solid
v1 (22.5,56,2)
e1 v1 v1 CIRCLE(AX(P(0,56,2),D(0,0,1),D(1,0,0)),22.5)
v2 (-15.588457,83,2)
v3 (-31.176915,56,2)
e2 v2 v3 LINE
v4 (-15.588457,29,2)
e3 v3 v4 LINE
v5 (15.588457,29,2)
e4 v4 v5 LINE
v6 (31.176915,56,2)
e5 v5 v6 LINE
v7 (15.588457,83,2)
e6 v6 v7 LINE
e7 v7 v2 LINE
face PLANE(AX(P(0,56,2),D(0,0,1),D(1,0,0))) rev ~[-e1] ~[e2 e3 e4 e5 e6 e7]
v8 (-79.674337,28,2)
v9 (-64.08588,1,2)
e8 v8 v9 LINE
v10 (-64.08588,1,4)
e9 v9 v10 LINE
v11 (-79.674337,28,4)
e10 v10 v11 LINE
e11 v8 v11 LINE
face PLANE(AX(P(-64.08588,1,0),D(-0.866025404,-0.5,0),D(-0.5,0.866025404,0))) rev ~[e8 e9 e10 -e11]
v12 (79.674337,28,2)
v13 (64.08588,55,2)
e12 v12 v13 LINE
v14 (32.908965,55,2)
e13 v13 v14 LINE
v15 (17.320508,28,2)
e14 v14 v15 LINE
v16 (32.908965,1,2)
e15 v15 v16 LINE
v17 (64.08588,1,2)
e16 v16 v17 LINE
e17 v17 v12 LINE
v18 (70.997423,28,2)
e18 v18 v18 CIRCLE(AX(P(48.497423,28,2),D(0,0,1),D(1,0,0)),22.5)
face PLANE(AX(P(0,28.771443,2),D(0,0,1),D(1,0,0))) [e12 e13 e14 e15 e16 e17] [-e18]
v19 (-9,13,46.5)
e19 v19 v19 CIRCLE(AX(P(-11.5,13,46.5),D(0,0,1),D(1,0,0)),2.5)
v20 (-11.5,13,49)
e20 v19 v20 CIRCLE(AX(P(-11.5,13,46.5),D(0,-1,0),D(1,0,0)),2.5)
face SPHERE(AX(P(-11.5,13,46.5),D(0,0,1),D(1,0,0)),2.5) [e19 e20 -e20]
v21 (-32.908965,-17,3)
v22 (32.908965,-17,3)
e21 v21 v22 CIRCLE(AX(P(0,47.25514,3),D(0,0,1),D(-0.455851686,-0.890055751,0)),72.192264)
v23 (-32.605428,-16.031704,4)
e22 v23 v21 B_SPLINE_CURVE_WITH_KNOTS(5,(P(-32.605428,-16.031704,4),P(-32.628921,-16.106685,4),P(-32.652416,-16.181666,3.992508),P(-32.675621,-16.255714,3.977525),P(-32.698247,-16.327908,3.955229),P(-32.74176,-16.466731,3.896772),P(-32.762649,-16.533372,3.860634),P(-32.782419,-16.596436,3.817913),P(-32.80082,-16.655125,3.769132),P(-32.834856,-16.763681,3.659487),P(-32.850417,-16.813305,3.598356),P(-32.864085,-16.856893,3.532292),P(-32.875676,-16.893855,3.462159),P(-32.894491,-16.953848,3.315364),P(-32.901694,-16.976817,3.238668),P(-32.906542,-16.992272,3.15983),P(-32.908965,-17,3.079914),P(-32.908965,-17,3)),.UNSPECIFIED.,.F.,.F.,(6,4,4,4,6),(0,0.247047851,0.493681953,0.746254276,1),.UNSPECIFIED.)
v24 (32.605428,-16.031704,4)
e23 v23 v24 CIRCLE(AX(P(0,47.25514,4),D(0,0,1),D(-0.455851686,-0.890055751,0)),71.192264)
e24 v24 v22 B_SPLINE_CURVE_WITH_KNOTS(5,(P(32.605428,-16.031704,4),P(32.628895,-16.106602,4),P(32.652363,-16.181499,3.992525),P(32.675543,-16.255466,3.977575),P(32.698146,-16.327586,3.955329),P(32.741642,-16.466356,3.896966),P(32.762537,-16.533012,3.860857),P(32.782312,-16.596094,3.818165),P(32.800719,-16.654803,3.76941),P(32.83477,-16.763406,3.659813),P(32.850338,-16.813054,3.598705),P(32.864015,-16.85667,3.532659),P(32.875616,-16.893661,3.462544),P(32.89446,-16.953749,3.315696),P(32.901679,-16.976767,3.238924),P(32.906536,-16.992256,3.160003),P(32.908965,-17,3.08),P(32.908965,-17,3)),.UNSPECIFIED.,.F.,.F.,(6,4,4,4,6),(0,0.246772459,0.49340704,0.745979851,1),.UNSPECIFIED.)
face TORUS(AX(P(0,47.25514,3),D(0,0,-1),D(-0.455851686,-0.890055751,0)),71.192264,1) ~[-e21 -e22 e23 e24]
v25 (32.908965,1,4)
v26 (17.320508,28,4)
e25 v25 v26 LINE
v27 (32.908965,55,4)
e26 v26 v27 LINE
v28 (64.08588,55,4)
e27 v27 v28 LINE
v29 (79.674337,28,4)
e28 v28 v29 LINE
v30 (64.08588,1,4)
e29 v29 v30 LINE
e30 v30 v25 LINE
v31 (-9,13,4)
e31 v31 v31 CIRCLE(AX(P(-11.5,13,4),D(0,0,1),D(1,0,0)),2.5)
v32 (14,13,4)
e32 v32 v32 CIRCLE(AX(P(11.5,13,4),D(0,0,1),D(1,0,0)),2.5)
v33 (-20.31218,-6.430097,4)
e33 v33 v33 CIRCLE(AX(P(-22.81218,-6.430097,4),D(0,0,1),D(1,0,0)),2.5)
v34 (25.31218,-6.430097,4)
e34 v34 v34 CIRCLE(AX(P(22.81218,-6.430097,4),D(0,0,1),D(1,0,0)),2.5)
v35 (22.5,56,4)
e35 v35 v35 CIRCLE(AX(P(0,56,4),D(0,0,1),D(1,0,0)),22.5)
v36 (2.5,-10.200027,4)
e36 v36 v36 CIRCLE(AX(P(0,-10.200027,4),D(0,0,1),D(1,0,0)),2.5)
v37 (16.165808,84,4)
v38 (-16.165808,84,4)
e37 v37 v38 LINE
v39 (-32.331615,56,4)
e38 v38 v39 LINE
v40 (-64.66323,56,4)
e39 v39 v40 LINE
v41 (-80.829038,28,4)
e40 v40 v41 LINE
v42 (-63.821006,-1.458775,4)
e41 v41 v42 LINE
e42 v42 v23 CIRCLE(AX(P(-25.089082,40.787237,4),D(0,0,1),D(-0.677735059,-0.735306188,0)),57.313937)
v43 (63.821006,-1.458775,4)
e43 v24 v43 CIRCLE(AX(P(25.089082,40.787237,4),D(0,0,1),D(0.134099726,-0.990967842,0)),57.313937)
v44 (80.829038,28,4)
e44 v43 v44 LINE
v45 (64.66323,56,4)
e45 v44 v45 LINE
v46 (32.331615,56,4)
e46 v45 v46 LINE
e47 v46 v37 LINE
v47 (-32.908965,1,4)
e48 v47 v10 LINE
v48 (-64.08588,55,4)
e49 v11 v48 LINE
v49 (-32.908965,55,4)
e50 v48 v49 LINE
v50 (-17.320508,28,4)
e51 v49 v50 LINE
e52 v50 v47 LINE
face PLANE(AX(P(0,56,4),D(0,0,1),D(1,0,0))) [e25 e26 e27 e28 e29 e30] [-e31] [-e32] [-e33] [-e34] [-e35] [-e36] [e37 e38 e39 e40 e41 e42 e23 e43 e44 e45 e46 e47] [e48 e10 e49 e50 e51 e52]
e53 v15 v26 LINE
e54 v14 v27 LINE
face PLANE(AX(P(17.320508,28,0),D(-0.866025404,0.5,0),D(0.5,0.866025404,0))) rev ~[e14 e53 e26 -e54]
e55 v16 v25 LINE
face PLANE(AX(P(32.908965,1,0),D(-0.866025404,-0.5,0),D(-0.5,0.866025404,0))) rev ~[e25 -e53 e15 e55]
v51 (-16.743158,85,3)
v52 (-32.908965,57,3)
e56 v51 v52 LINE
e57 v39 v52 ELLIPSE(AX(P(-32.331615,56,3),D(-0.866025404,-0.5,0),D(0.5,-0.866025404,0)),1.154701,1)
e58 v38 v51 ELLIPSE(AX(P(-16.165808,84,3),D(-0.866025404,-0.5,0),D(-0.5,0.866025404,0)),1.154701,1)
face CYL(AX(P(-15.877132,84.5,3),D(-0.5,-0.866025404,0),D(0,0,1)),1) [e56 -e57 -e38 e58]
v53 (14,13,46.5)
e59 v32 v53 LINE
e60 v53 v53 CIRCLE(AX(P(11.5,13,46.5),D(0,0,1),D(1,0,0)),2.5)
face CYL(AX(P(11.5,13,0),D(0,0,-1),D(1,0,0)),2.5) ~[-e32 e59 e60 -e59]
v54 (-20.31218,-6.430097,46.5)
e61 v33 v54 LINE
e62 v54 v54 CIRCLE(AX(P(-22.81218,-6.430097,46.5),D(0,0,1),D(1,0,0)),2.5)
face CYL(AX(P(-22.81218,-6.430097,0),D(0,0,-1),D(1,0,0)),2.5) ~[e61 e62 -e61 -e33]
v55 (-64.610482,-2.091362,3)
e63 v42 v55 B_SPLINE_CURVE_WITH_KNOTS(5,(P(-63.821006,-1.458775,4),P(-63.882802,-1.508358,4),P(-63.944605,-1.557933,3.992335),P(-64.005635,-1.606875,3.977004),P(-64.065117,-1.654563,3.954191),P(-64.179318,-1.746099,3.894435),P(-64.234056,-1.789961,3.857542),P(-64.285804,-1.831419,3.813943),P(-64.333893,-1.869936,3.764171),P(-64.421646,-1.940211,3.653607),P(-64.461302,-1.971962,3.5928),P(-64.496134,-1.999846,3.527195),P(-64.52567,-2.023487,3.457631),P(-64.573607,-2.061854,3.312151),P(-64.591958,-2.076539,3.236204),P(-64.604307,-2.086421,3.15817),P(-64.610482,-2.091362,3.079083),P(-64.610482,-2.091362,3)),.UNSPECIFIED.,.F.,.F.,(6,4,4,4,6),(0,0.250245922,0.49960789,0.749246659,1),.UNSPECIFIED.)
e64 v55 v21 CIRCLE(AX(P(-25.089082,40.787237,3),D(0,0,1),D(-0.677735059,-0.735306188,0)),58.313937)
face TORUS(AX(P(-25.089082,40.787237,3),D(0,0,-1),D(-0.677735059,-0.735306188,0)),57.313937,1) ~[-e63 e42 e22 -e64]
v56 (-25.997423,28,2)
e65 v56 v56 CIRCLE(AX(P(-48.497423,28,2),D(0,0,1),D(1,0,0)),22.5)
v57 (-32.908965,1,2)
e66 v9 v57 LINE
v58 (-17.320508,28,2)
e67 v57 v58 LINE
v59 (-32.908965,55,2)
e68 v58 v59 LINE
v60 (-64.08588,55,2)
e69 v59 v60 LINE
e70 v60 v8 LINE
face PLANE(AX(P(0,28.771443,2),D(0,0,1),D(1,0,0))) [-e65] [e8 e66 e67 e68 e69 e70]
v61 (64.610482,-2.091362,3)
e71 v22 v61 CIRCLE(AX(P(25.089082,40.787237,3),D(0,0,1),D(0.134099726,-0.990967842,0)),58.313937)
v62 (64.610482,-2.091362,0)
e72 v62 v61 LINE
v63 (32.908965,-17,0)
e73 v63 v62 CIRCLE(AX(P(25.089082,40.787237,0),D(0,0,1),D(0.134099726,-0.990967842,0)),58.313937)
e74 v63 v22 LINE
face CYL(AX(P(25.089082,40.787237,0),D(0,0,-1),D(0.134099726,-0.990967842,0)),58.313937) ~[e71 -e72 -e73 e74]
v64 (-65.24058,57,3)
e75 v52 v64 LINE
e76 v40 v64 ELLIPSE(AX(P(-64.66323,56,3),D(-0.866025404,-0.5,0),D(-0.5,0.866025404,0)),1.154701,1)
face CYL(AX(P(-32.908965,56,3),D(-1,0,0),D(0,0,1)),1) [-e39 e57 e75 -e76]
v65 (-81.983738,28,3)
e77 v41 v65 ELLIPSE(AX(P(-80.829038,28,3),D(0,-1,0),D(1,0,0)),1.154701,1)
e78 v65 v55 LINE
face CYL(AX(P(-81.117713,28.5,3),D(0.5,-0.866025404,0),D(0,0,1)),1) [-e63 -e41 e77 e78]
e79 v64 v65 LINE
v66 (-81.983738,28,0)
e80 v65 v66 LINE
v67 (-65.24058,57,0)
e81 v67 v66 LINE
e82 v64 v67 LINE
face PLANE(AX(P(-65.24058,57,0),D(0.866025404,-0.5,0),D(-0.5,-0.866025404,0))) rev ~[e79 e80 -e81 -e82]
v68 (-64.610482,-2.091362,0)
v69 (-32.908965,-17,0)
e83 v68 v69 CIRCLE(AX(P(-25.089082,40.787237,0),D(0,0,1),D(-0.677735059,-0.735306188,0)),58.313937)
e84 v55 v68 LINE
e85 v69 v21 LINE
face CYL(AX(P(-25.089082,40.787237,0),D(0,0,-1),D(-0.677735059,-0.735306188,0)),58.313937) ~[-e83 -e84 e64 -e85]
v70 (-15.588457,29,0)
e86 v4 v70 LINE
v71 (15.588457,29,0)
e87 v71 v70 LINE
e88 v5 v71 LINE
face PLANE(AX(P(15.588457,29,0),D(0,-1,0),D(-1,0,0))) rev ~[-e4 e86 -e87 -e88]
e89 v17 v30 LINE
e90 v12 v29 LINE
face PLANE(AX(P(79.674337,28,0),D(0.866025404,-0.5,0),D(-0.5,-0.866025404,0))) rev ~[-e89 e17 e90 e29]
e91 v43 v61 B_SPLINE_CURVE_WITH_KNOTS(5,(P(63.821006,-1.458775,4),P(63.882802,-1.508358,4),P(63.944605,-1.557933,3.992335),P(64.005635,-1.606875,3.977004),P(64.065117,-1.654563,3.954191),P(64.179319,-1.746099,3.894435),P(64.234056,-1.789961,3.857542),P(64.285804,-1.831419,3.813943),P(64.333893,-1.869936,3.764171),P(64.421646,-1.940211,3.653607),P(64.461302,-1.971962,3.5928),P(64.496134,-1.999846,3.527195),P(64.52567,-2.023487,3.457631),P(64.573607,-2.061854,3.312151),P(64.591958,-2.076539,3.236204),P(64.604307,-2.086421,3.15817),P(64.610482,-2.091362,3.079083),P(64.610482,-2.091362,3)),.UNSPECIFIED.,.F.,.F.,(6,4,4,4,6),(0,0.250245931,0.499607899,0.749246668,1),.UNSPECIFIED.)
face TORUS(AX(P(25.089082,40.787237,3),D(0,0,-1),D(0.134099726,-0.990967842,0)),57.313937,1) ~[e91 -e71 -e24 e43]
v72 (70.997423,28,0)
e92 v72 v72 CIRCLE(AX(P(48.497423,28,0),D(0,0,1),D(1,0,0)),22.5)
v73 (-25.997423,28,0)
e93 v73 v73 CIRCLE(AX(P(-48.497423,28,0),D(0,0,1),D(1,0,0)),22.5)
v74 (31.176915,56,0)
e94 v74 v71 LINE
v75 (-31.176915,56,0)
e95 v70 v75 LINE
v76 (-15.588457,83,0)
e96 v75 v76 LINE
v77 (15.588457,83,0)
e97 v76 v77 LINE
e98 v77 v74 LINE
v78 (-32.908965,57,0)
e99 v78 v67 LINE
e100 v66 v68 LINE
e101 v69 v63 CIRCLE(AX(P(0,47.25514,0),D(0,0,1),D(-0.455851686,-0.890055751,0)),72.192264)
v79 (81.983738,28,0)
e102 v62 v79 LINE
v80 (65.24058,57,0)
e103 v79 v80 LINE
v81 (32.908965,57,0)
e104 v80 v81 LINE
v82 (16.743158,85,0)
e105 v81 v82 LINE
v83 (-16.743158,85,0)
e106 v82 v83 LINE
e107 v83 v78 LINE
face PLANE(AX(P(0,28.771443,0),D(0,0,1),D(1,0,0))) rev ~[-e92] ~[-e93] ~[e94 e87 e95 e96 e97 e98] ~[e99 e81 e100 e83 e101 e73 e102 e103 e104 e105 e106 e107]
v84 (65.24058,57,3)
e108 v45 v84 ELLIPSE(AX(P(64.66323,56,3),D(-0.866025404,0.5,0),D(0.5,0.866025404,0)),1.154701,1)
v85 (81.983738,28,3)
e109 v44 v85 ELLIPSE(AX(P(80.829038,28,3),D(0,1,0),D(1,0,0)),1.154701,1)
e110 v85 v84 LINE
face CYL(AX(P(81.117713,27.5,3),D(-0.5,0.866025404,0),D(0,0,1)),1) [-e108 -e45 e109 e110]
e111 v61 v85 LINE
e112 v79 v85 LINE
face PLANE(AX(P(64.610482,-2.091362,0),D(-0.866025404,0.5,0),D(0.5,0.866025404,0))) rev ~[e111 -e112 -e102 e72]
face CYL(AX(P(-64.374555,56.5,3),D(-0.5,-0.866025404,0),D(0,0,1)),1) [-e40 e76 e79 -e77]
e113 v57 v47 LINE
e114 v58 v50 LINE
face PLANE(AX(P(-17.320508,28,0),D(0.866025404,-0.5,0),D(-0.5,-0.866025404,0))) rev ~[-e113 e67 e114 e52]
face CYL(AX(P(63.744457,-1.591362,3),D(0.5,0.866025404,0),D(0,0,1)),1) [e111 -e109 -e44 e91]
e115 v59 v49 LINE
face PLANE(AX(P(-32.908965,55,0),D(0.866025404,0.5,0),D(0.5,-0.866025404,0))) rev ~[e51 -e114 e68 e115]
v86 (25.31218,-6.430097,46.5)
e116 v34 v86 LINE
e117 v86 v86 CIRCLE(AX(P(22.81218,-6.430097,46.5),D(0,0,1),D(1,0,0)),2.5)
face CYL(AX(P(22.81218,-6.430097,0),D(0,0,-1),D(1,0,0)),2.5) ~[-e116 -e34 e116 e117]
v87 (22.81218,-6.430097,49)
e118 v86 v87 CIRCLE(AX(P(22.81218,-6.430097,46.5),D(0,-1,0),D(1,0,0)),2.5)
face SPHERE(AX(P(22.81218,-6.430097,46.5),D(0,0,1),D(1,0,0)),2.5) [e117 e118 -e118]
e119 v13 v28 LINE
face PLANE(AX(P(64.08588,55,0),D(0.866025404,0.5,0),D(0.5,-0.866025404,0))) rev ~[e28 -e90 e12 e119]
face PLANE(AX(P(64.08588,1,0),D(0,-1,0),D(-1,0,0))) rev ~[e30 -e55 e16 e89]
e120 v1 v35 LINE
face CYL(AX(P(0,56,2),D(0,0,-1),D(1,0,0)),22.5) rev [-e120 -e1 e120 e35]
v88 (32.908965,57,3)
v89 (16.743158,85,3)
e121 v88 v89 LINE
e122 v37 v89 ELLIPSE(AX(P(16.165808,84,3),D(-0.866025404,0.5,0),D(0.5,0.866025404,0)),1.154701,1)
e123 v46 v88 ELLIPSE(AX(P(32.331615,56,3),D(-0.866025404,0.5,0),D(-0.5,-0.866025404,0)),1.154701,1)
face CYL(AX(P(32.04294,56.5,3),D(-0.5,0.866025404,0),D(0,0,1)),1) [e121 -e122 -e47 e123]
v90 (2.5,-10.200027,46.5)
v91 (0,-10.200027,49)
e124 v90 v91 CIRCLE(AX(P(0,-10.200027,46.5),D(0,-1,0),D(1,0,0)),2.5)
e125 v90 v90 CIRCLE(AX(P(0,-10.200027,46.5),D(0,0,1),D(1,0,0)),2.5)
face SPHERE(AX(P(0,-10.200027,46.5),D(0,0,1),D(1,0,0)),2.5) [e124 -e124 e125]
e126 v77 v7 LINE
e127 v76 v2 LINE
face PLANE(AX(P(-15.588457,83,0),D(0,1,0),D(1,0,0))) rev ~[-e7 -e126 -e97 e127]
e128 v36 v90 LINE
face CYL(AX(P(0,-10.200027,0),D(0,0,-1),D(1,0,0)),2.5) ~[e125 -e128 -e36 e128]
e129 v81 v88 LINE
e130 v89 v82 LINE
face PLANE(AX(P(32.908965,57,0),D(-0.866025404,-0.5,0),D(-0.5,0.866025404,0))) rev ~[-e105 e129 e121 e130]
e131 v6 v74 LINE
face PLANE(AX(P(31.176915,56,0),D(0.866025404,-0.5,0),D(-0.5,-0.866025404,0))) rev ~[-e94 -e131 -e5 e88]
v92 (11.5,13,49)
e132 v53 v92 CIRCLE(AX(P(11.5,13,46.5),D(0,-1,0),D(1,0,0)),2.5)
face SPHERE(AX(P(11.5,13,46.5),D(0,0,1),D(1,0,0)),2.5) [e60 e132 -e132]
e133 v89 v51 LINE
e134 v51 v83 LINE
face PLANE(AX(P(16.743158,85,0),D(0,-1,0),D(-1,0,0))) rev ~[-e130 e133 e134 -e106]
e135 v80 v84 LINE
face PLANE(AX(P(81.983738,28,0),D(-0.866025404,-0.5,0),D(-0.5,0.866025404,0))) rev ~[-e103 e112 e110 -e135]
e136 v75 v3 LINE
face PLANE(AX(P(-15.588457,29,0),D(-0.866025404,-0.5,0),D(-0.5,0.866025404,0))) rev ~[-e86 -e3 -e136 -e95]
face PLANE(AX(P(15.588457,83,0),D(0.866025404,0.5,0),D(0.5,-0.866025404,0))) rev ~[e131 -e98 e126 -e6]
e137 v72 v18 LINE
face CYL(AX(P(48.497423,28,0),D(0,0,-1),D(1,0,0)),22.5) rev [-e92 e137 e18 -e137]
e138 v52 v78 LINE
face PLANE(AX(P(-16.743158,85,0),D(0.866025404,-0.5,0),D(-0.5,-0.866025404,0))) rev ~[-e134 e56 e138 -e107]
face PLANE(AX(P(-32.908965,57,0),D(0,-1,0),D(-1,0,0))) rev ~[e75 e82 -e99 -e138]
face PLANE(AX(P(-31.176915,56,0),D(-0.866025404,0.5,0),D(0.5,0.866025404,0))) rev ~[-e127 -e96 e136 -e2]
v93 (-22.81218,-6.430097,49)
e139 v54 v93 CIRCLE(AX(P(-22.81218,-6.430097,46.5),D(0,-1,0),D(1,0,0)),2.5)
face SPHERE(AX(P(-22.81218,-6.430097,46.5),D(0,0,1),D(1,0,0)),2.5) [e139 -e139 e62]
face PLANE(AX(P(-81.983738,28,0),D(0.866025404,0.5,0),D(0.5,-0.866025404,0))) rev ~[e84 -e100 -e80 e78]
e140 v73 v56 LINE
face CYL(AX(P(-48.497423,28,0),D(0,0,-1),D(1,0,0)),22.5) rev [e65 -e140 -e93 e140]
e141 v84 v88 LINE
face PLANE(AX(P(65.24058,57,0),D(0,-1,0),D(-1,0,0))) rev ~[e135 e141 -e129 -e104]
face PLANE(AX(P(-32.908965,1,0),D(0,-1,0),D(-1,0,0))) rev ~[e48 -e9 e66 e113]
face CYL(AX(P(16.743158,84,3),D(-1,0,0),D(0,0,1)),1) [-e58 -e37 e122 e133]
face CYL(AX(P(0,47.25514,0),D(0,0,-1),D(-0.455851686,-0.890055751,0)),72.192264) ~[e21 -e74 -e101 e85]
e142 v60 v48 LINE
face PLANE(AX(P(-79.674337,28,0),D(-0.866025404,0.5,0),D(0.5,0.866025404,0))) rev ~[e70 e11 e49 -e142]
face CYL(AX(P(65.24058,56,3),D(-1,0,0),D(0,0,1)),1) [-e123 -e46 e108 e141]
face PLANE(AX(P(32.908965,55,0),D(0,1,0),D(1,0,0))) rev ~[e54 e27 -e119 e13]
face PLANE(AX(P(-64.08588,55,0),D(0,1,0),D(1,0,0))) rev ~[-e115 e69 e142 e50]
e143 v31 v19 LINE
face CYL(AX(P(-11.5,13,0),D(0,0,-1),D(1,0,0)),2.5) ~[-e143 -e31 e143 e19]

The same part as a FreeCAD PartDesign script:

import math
import FreeCAD as App
import Part
import Sketcher
Q = App.Units.Quantity


def edges_at(feature, points):
    """Names of the edges that pass closest to the given points."""
    edges = feature.Shape.Edges
    near = lambda p: min(range(len(edges)), key=lambda i: edges[i].distToShape(Part.Vertex(*p))[0])
    return sorted({f"Edge{near(p) + 1}" for p in points})

doc = App.newDocument("Part")
body = doc.addObject("PartDesign::Body", "Body")

# Sketch on XY plane
sketch1 = doc.addObject("Sketcher::SketchObject", "Sketch")
body.addObject(sketch1)
sketch1.AttachmentSupport = (doc.XY_Plane, [""])
sketch1.MapMode = "FlatFace"
sketch1.addGeometry(Part.ArcOfCircle(Part.Circle(App.Vector(-25.1, 40.8, 0), App.Vector(0, 0, 1), 58.3), math.radians(-133), math.radians(-98)), False)
sketch1.addGeometry(Part.ArcOfCircle(Part.Circle(App.Vector(0, 47.3, 0), App.Vector(0, 0, 1), 72.2), math.radians(-117), math.radians(-63)), False)
sketch1.addGeometry(Part.ArcOfCircle(Part.Circle(App.Vector(25.1, 40.8, 0), App.Vector(0, 0, 1), 58.3), math.radians(-82), math.radians(-47)), False)
sketch1.addGeometry(Part.LineSegment(App.Vector(64.6, -2.1, 0), App.Vector(82, 28, 0)), False)
sketch1.addGeometry(Part.LineSegment(App.Vector(82, 28, 0), App.Vector(65.2, 57, 0)), False)
sketch1.addGeometry(Part.LineSegment(App.Vector(65.2, 57, 0), App.Vector(32.9, 57, 0)), False)
sketch1.addGeometry(Part.LineSegment(App.Vector(32.9, 57, 0), App.Vector(16.7, 85, 0)), False)
sketch1.addGeometry(Part.LineSegment(App.Vector(16.7, 85, 0), App.Vector(-16.7, 85, 0)), False)
sketch1.addGeometry(Part.LineSegment(App.Vector(-16.7, 85, 0), App.Vector(-32.9, 57, 0)), False)
sketch1.addGeometry(Part.LineSegment(App.Vector(-32.9, 57, 0), App.Vector(-65.2, 57, 0)), False)
sketch1.addGeometry(Part.LineSegment(App.Vector(-65.2, 57, 0), App.Vector(-82, 28, 0)), False)
sketch1.addGeometry(Part.LineSegment(App.Vector(-82, 28, 0), App.Vector(-64.6, -2.1, 0)), False)
sketch1.addGeometry(Part.Circle(App.Vector(-22.8, -6.4, 0), App.Vector(0, 0, 1), 2.5), False)
sketch1.addGeometry(Part.Circle(App.Vector(-48.5, 28, 0), App.Vector(0, 0, 1), 22.5), False)
sketch1.addGeometry(Part.Circle(App.Vector(-11.5, 13, 0), App.Vector(0, 0, 1), 2.5), False)
sketch1.addGeometry(Part.Circle(App.Vector(0, -10.2, 0), App.Vector(0, 0, 1), 2.5), False)
sketch1.addGeometry(Part.Circle(App.Vector(22.8, -6.4, 0), App.Vector(0, 0, 1), 2.5), False)
sketch1.addGeometry(Part.Circle(App.Vector(11.5, 13, 0), App.Vector(0, 0, 1), 2.5), False)
sketch1.addGeometry(Part.Circle(App.Vector(48.5, 28, 0), App.Vector(0, 0, 1), 22.5), False)
sketch1.addGeometry(Part.LineSegment(App.Vector(-15.6, 29, 0), App.Vector(-31.2, 56, 0)), False)
sketch1.addGeometry(Part.LineSegment(App.Vector(-31.2, 56, 0), App.Vector(-15.6, 83, 0)), False)
sketch1.addGeometry(Part.LineSegment(App.Vector(-15.6, 83, 0), App.Vector(15.6, 83, 0)), False)
sketch1.addGeometry(Part.LineSegment(App.Vector(15.6, 83, 0), App.Vector(31.2, 56, 0)), False)
sketch1.addGeometry(Part.LineSegment(App.Vector(31.2, 56, 0), App.Vector(15.6, 29, 0)), False)
sketch1.addGeometry(Part.LineSegment(App.Vector(15.6, 29, 0), App.Vector(-15.6, 29, 0)), False)
sketch1.addConstraint(Sketcher.Constraint("Coincident", 0, 2, 1, 1))
sketch1.addConstraint(Sketcher.Constraint("Coincident", 1, 2, 2, 1))
sketch1.addConstraint(Sketcher.Constraint("Coincident", 2, 2, 3, 1))
sketch1.addConstraint(Sketcher.Constraint("Coincident", 3, 2, 4, 1))
sketch1.addConstraint(Sketcher.Constraint("Coincident", 4, 2, 5, 1))
sketch1.addConstraint(Sketcher.Constraint("Coincident", 5, 2, 6, 1))
sketch1.addConstraint(Sketcher.Constraint("Coincident", 6, 2, 7, 1))
sketch1.addConstraint(Sketcher.Constraint("Coincident", 7, 2, 8, 1))
sketch1.addConstraint(Sketcher.Constraint("Coincident", 8, 2, 9, 1))
sketch1.addConstraint(Sketcher.Constraint("Coincident", 9, 2, 10, 1))
sketch1.addConstraint(Sketcher.Constraint("Coincident", 10, 2, 11, 1))
sketch1.addConstraint(Sketcher.Constraint("Coincident", 11, 2, 0, 1))
sketch1.addConstraint(Sketcher.Constraint("Coincident", 19, 2, 20, 1))
sketch1.addConstraint(Sketcher.Constraint("Coincident", 20, 2, 21, 1))
sketch1.addConstraint(Sketcher.Constraint("Coincident", 21, 2, 22, 1))
sketch1.addConstraint(Sketcher.Constraint("Coincident", 22, 2, 23, 1))
sketch1.addConstraint(Sketcher.Constraint("Coincident", 23, 2, 24, 1))
sketch1.addConstraint(Sketcher.Constraint("Coincident", 24, 2, 19, 1))
sketch1.addConstraint(Sketcher.Constraint("Horizontal", 5))
sketch1.addConstraint(Sketcher.Constraint("Horizontal", 7))
sketch1.addConstraint(Sketcher.Constraint("Horizontal", 9))
sketch1.addConstraint(Sketcher.Constraint("Horizontal", 21))
sketch1.addConstraint(Sketcher.Constraint("Horizontal", 24))
sketch1.addConstraint(Sketcher.Constraint("Equal", 0, 2))
sketch1.addConstraint(Sketcher.Constraint("Equal", 12, 14))
sketch1.addConstraint(Sketcher.Constraint("Equal", 14, 15))
sketch1.addConstraint(Sketcher.Constraint("Equal", 15, 16))
sketch1.addConstraint(Sketcher.Constraint("Equal", 16, 17))
sketch1.addConstraint(Sketcher.Constraint("Equal", 13, 18))
sketch1.addConstraint(Sketcher.Constraint("Symmetric", 0, 3, 2, 3, -2))
sketch1.addConstraint(Sketcher.Constraint("Symmetric", 12, 3, 16, 3, -2))
sketch1.addConstraint(Sketcher.Constraint("Symmetric", 14, 3, 17, 3, -2))
sketch1.addConstraint(Sketcher.Constraint("Symmetric", 13, 3, 18, 3, -2))
sketch1.addConstraint(Sketcher.Constraint("Symmetric", 5, 2, 8, 2, -2))
sketch1.addConstraint(Sketcher.Constraint("Symmetric", 3, 2, 10, 2, -2))
sketch1.addConstraint(Sketcher.Constraint("Symmetric", 19, 2, 22, 2, -2))
sketch1.addConstraint(Sketcher.Constraint("PointOnObject", 1, 3, -2))
sketch1.addConstraint(Sketcher.Constraint("PointOnObject", 15, 3, -2))
sketch1.addConstraint(Sketcher.Constraint("Parallel", 4, 6))
sketch1.addConstraint(Sketcher.Constraint("Parallel", 3, 8))
sketch1.addConstraint(Sketcher.Constraint("Parallel", 8, 10))
sketch1.addConstraint(Sketcher.Constraint("Parallel", 6, 11))
sketch1.addConstraint(Sketcher.Constraint("Parallel", 11, 19))
sketch1.addConstraint(Sketcher.Constraint("Parallel", 10, 20))
sketch1.addConstraint(Sketcher.Constraint("Parallel", 19, 22))
sketch1.addConstraint(Sketcher.Constraint("Parallel", 20, 23))
sketch1.addConstraint(Sketcher.Constraint("Horizontal", 18, 3, 3, 2))
sketch1.addConstraint(Sketcher.Constraint("Horizontal", 2, 2, 11, 2))
sketch1.addConstraint(Sketcher.Constraint("Vertical", 1, 2, 5, 2))
sketch1.addConstraint(Sketcher.Constraint("Vertical", 21, 2, 23, 2))
sketch1.addConstraint(Sketcher.Constraint("Diameter", 12, 5.0))
sketch1.addConstraint(Sketcher.Constraint("Diameter", 13, 45.0))
sketch1.addConstraint(Sketcher.Constraint("Angle", 3, Q("60 deg")))
sketch1.addConstraint(Sketcher.Constraint("DistanceY", -1, 1, 13, 3, 28.0))
sketch1.addConstraint(Sketcher.Constraint("DistanceY", -1, 1, 14, 3, 13.0))
sketch1.addConstraint(Sketcher.Constraint("DistanceY", 0, 2, -1, 1, 17.0))
sketch1.addConstraint(Sketcher.Constraint("DistanceY", -1, 1, 4, 2, 57.0))
sketch1.addConstraint(Sketcher.Constraint("DistanceY", -1, 1, 6, 2, 85.0))
sketch1.addConstraint(Sketcher.Constraint("DistanceY", -1, 1, 19, 2, 56.0))
sketch1.addConstraint(Sketcher.Constraint("DistanceY", -1, 1, 20, 2, 83.0))
sketch1.addConstraint(Sketcher.Constraint("DistanceX", 14, 3, 17, 3, 23.0))
sketch1.addConstraint(Sketcher.Constraint("Radius", 0, 58.313937))
sketch1.addConstraint(Sketcher.Constraint("Radius", 1, 72.192264))
sketch1.addConstraint(Sketcher.Constraint("DistanceX", 2, 3, 2, 2, 39.5214))
sketch1.addConstraint(Sketcher.Constraint("DistanceX", 2, 3, 4, 2, 40.151498))
sketch1.addConstraint(Sketcher.Constraint("DistanceX", 7, 2, 20, 2, 1.154701))
sketch1.addConstraint(Sketcher.Constraint("DistanceX", 7, 2, 7, 1, 33.486316))
sketch1.addConstraint(Sketcher.Constraint("DistanceX", 12, 3, -1, 1, 22.81218))
sketch1.addConstraint(Sketcher.Constraint("DistanceX", 13, 3, 0, 3, 23.40834))
sketch1.addConstraint(Sketcher.Constraint("DistanceY", 15, 3, 12, 3, 3.76993))
sketch1.addConstraint(Sketcher.Constraint("DistanceY", 12, 3, -1, 1, 6.430097))
pad1 = doc.addObject("PartDesign::Pad", "Pad")
body.addObject(pad1)
pad1.Profile = sketch1
pad1.Length = 2

# Sketch on XY plane
sketch2 = doc.addObject("Sketcher::SketchObject", "Sketch001")
body.addObject(sketch2)
sketch2.AttachmentSupport = (doc.XY_Plane, [""])
sketch2.MapMode = "FlatFace"
sketch2.addGeometry(Part.ArcOfCircle(Part.Circle(App.Vector(-25.1, 40.8, 0), App.Vector(0, 0, 1), 58.3), math.radians(-133), math.radians(-98)), False)
sketch2.addGeometry(Part.ArcOfCircle(Part.Circle(App.Vector(0, 47.3, 0), App.Vector(0, 0, 1), 72.2), math.radians(-117), math.radians(-63)), False)
sketch2.addGeometry(Part.ArcOfCircle(Part.Circle(App.Vector(25.1, 40.8, 0), App.Vector(0, 0, 1), 58.3), math.radians(-82), math.radians(-47)), False)
sketch2.addGeometry(Part.LineSegment(App.Vector(64.6, -2.1, 0), App.Vector(82, 28, 0)), False)
sketch2.addGeometry(Part.LineSegment(App.Vector(82, 28, 0), App.Vector(65.2, 57, 0)), False)
sketch2.addGeometry(Part.LineSegment(App.Vector(65.2, 57, 0), App.Vector(32.9, 57, 0)), False)
sketch2.addGeometry(Part.LineSegment(App.Vector(32.9, 57, 0), App.Vector(16.7, 85, 0)), False)
sketch2.addGeometry(Part.LineSegment(App.Vector(16.7, 85, 0), App.Vector(-16.7, 85, 0)), False)
sketch2.addGeometry(Part.LineSegment(App.Vector(-16.7, 85, 0), App.Vector(-32.9, 57, 0)), False)
sketch2.addGeometry(Part.LineSegment(App.Vector(-32.9, 57, 0), App.Vector(-65.2, 57, 0)), False)
sketch2.addGeometry(Part.LineSegment(App.Vector(-65.2, 57, 0), App.Vector(-82, 28, 0)), False)
sketch2.addGeometry(Part.LineSegment(App.Vector(-82, 28, 0), App.Vector(-64.6, -2.1, 0)), False)
sketch2.addGeometry(Part.Circle(App.Vector(-22.8, -6.4, 0), App.Vector(0, 0, 1), 2.5), False)
sketch2.addGeometry(Part.LineSegment(App.Vector(-64.1, 1, 0), App.Vector(-79.7, 28, 0)), False)
sketch2.addGeometry(Part.LineSegment(App.Vector(-79.7, 28, 0), App.Vector(-64.1, 55, 0)), False)
sketch2.addGeometry(Part.LineSegment(App.Vector(-64.1, 55, 0), App.Vector(-32.9, 55, 0)), False)
sketch2.addGeometry(Part.LineSegment(App.Vector(-32.9, 55, 0), App.Vector(-17.3, 28, 0)), False)
sketch2.addGeometry(Part.LineSegment(App.Vector(-17.3, 28, 0), App.Vector(-32.9, 1, 0)), False)
sketch2.addGeometry(Part.LineSegment(App.Vector(-32.9, 1, 0), App.Vector(-64.1, 1, 0)), False)
sketch2.addGeometry(Part.Circle(App.Vector(-11.5, 13, 0), App.Vector(0, 0, 1), 2.5), False)
sketch2.addGeometry(Part.Circle(App.Vector(0, -10.2, 0), App.Vector(0, 0, 1), 2.5), False)
sketch2.addGeometry(Part.Circle(App.Vector(22.8, -6.4, 0), App.Vector(0, 0, 1), 2.5), False)
sketch2.addGeometry(Part.Circle(App.Vector(11.5, 13, 0), App.Vector(0, 0, 1), 2.5), False)
sketch2.addGeometry(Part.LineSegment(App.Vector(79.7, 28, 0), App.Vector(64.1, 1, 0)), False)
sketch2.addGeometry(Part.LineSegment(App.Vector(64.1, 1, 0), App.Vector(32.9, 1, 0)), False)
sketch2.addGeometry(Part.LineSegment(App.Vector(32.9, 1, 0), App.Vector(17.3, 28, 0)), False)
sketch2.addGeometry(Part.LineSegment(App.Vector(17.3, 28, 0), App.Vector(32.9, 55, 0)), False)
sketch2.addGeometry(Part.LineSegment(App.Vector(32.9, 55, 0), App.Vector(64.1, 55, 0)), False)
sketch2.addGeometry(Part.LineSegment(App.Vector(64.1, 55, 0), App.Vector(79.7, 28, 0)), False)
sketch2.addGeometry(Part.LineSegment(App.Vector(-15.6, 29, 0), App.Vector(-31.2, 56, 0)), False)
sketch2.addGeometry(Part.LineSegment(App.Vector(-31.2, 56, 0), App.Vector(-15.6, 83, 0)), False)
sketch2.addGeometry(Part.LineSegment(App.Vector(-15.6, 83, 0), App.Vector(15.6, 83, 0)), False)
sketch2.addGeometry(Part.LineSegment(App.Vector(15.6, 83, 0), App.Vector(31.2, 56, 0)), False)
sketch2.addGeometry(Part.LineSegment(App.Vector(31.2, 56, 0), App.Vector(15.6, 29, 0)), False)
sketch2.addGeometry(Part.LineSegment(App.Vector(15.6, 29, 0), App.Vector(-15.6, 29, 0)), False)
sketch2.addConstraint(Sketcher.Constraint("Coincident", 0, 2, 1, 1))
sketch2.addConstraint(Sketcher.Constraint("Coincident", 1, 2, 2, 1))
sketch2.addConstraint(Sketcher.Constraint("Coincident", 2, 2, 3, 1))
sketch2.addConstraint(Sketcher.Constraint("Coincident", 3, 2, 4, 1))
sketch2.addConstraint(Sketcher.Constraint("Coincident", 4, 2, 5, 1))
sketch2.addConstraint(Sketcher.Constraint("Coincident", 5, 2, 6, 1))
sketch2.addConstraint(Sketcher.Constraint("Coincident", 6, 2, 7, 1))
sketch2.addConstraint(Sketcher.Constraint("Coincident", 7, 2, 8, 1))
sketch2.addConstraint(Sketcher.Constraint("Coincident", 8, 2, 9, 1))
sketch2.addConstraint(Sketcher.Constraint("Coincident", 9, 2, 10, 1))
sketch2.addConstraint(Sketcher.Constraint("Coincident", 10, 2, 11, 1))
sketch2.addConstraint(Sketcher.Constraint("Coincident", 11, 2, 0, 1))
sketch2.addConstraint(Sketcher.Constraint("Coincident", 13, 2, 14, 1))
sketch2.addConstraint(Sketcher.Constraint("Coincident", 14, 2, 15, 1))
sketch2.addConstraint(Sketcher.Constraint("Coincident", 15, 2, 16, 1))
sketch2.addConstraint(Sketcher.Constraint("Coincident", 16, 2, 17, 1))
sketch2.addConstraint(Sketcher.Constraint("Coincident", 17, 2, 18, 1))
sketch2.addConstraint(Sketcher.Constraint("Coincident", 18, 2, 13, 1))
sketch2.addConstraint(Sketcher.Constraint("Coincident", 23, 2, 24, 1))
sketch2.addConstraint(Sketcher.Constraint("Coincident", 24, 2, 25, 1))
sketch2.addConstraint(Sketcher.Constraint("Coincident", 25, 2, 26, 1))
sketch2.addConstraint(Sketcher.Constraint("Coincident", 26, 2, 27, 1))
sketch2.addConstraint(Sketcher.Constraint("Coincident", 27, 2, 28, 1))
sketch2.addConstraint(Sketcher.Constraint("Coincident", 28, 2, 23, 1))
sketch2.addConstraint(Sketcher.Constraint("Coincident", 29, 2, 30, 1))
sketch2.addConstraint(Sketcher.Constraint("Coincident", 30, 2, 31, 1))
sketch2.addConstraint(Sketcher.Constraint("Coincident", 31, 2, 32, 1))
sketch2.addConstraint(Sketcher.Constraint("Coincident", 32, 2, 33, 1))
sketch2.addConstraint(Sketcher.Constraint("Coincident", 33, 2, 34, 1))
sketch2.addConstraint(Sketcher.Constraint("Coincident", 34, 2, 29, 1))
sketch2.addConstraint(Sketcher.Constraint("Horizontal", 5))
sketch2.addConstraint(Sketcher.Constraint("Horizontal", 7))
sketch2.addConstraint(Sketcher.Constraint("Horizontal", 9))
sketch2.addConstraint(Sketcher.Constraint("Horizontal", 15))
sketch2.addConstraint(Sketcher.Constraint("Horizontal", 18))
sketch2.addConstraint(Sketcher.Constraint("Horizontal", 24))
sketch2.addConstraint(Sketcher.Constraint("Horizontal", 27))
sketch2.addConstraint(Sketcher.Constraint("Horizontal", 31))
sketch2.addConstraint(Sketcher.Constraint("Horizontal", 34))
sketch2.addConstraint(Sketcher.Constraint("Equal", 0, 2))
sketch2.addConstraint(Sketcher.Constraint("Equal", 12, 19))
sketch2.addConstraint(Sketcher.Constraint("Equal", 19, 20))
sketch2.addConstraint(Sketcher.Constraint("Equal", 20, 21))
sketch2.addConstraint(Sketcher.Constraint("Equal", 21, 22))
sketch2.addConstraint(Sketcher.Constraint("Symmetric", 0, 3, 2, 3, -2))
sketch2.addConstraint(Sketcher.Constraint("Symmetric", 12, 3, 21, 3, -2))
sketch2.addConstraint(Sketcher.Constraint("Symmetric", 19, 3, 22, 3, -2))
sketch2.addConstraint(Sketcher.Constraint("Symmetric", 5, 2, 8, 2, -2))
sketch2.addConstraint(Sketcher.Constraint("Symmetric", 3, 2, 10, 2, -2))
sketch2.addConstraint(Sketcher.Constraint("Symmetric", 18, 2, 23, 2, -2))
sketch2.addConstraint(Sketcher.Constraint("Symmetric", 16, 2, 25, 2, -2))
sketch2.addConstraint(Sketcher.Constraint("Symmetric", 15, 2, 26, 2, -2))
sketch2.addConstraint(Sketcher.Constraint("Symmetric", 13, 2, 28, 2, -2))
sketch2.addConstraint(Sketcher.Constraint("Symmetric", 29, 2, 32, 2, -2))
sketch2.addConstraint(Sketcher.Constraint("PointOnObject", 1, 3, -2))
sketch2.addConstraint(Sketcher.Constraint("PointOnObject", 20, 3, -2))
sketch2.addConstraint(Sketcher.Constraint("Parallel", 4, 6))
sketch2.addConstraint(Sketcher.Constraint("Parallel", 3, 8))
sketch2.addConstraint(Sketcher.Constraint("Parallel", 8, 10))
sketch2.addConstraint(Sketcher.Constraint("Parallel", 6, 11))
sketch2.addConstraint(Sketcher.Constraint("Parallel", 11, 13))
sketch2.addConstraint(Sketcher.Constraint("Parallel", 10, 14))
sketch2.addConstraint(Sketcher.Constraint("Parallel", 13, 16))
sketch2.addConstraint(Sketcher.Constraint("Parallel", 14, 17))
sketch2.addConstraint(Sketcher.Constraint("Parallel", 17, 23))
sketch2.addConstraint(Sketcher.Constraint("Parallel", 16, 25))
sketch2.addConstraint(Sketcher.Constraint("Parallel", 25, 28))
sketch2.addConstraint(Sketcher.Constraint("Parallel", 28, 29))
sketch2.addConstraint(Sketcher.Constraint("Parallel", 26, 30))
sketch2.addConstraint(Sketcher.Constraint("Parallel", 29, 32))
sketch2.addConstraint(Sketcher.Constraint("Parallel", 30, 33))
sketch2.addConstraint(Sketcher.Constraint("Horizontal", 10, 2, 13, 2))
sketch2.addConstraint(Sketcher.Constraint("Horizontal", 13, 2, 16, 2))
sketch2.addConstraint(Sketcher.Constraint("Vertical", 1, 2, 5, 2))
sketch2.addConstraint(Sketcher.Constraint("Vertical", 8, 2, 15, 2))
sketch2.addConstraint(Sketcher.Constraint("Vertical", 15, 2, 17, 2))
sketch2.addConstraint(Sketcher.Constraint("Vertical", 31, 2, 33, 2))
sketch2.addConstraint(Sketcher.Constraint("Equal", 27, 31))
sketch2.addConstraint(Sketcher.Constraint("Equal", 28, 29))
sketch2.addConstraint(Sketcher.Constraint("Diameter", 12, 5.0))
sketch2.addConstraint(Sketcher.Constraint("Angle", 3, Q("60 deg")))
sketch2.addConstraint(Sketcher.Constraint("DistanceY", -1, 1, 19, 3, 13.0))
sketch2.addConstraint(Sketcher.Constraint("DistanceY", 0, 2, -1, 1, 17.0))
sketch2.addConstraint(Sketcher.Constraint("DistanceY", -1, 1, 3, 2, 28.0))
sketch2.addConstraint(Sketcher.Constraint("DistanceY", -1, 1, 4, 2, 57.0))
sketch2.addConstraint(Sketcher.Constraint("DistanceY", -1, 1, 6, 2, 85.0))
sketch2.addConstraint(Sketcher.Constraint("DistanceY", -1, 1, 14, 2, 55.0))
sketch2.addConstraint(Sketcher.Constraint("DistanceY", -1, 1, 29, 2, 56.0))
sketch2.addConstraint(Sketcher.Constraint("DistanceX", 19, 3, 22, 3, 23.0))
sketch2.addConstraint(Sketcher.Constraint("Radius", 0, 58.313937))
sketch2.addConstraint(Sketcher.Constraint("Radius", 1, 72.192264))
sketch2.addConstraint(Sketcher.Constraint("DistanceX", 2, 3, 2, 2, 39.5214))
sketch2.addConstraint(Sketcher.Constraint("DistanceX", 2, 3, 4, 2, 40.151498))
sketch2.addConstraint(Sketcher.Constraint("DistanceX", 10, 2, 13, 2, 2.309401))
sketch2.addConstraint(Sketcher.Constraint("DistanceX", 21, 3, 23, 2, 41.2737))
sketch2.addConstraint(Sketcher.Constraint("DistanceX", 7, 2, 30, 2, 1.154701))
sketch2.addConstraint(Sketcher.Constraint("DistanceY", 20, 3, 12, 3, 3.76993))
sketch2.addConstraint(Sketcher.Constraint("DistanceY", 12, 3, -1, 1, 6.430097))
pad2 = doc.addObject("PartDesign::Pad", "Pad001")
body.addObject(pad2)
pad2.Profile = sketch2
pad2.Length = 4

# Sketch on XY plane
sketch3 = doc.addObject("Sketcher::SketchObject", "Sketch002")
body.addObject(sketch3)
sketch3.AttachmentSupport = (doc.XY_Plane, [""])
sketch3.MapMode = "FlatFace"
sketch3.addGeometry(Part.Circle(App.Vector(-11.5, 13, 0), App.Vector(0, 0, 1), 2.5), False)
sketch3.addGeometry(Part.Circle(App.Vector(11.5, 13, 0), App.Vector(0, 0, 1), 2.5), False)
sketch3.addGeometry(Part.Circle(App.Vector(-22.8, -6.4, 0), App.Vector(0, 0, 1), 2.5), False)
sketch3.addGeometry(Part.Circle(App.Vector(0, -10.2, 0), App.Vector(0, 0, 1), 2.5), False)
sketch3.addGeometry(Part.Circle(App.Vector(22.8, -6.4, 0), App.Vector(0, 0, 1), 2.5), False)
sketch3.addConstraint(Sketcher.Constraint("Equal", 0, 1))
sketch3.addConstraint(Sketcher.Constraint("Equal", 1, 2))
sketch3.addConstraint(Sketcher.Constraint("Equal", 2, 3))
sketch3.addConstraint(Sketcher.Constraint("Equal", 3, 4))
sketch3.addConstraint(Sketcher.Constraint("Symmetric", 0, 3, 1, 3, -2))
sketch3.addConstraint(Sketcher.Constraint("Symmetric", 2, 3, 4, 3, -2))
sketch3.addConstraint(Sketcher.Constraint("PointOnObject", 3, 3, -2))
sketch3.addConstraint(Sketcher.Constraint("Diameter", 0, 5.0))
sketch3.addConstraint(Sketcher.Constraint("DistanceY", -1, 1, 0, 3, 13.0))
sketch3.addConstraint(Sketcher.Constraint("DistanceX", 0, 3, 1, 3, 23.0))
sketch3.addConstraint(Sketcher.Constraint("DistanceX", 2, 3, -1, 1, 22.81218))
sketch3.addConstraint(Sketcher.Constraint("DistanceY", 3, 3, 2, 3, 3.76993))
sketch3.addConstraint(Sketcher.Constraint("DistanceY", 2, 3, -1, 1, 6.430097))
pad3 = doc.addObject("PartDesign::Pad", "Pad002")
body.addObject(pad3)
pad3.Profile = sketch3
pad3.Length = 49

# Sketch on XY plane
sketch4 = doc.addObject("Sketcher::SketchObject", "Sketch003")
body.addObject(sketch4)
sketch4.AttachmentSupport = (doc.XY_Plane, [""])
sketch4.MapMode = "FlatFace"
sketch4.AttachmentOffset = App.Placement(App.Vector(0, 0, 2), App.Rotation())
sketch4.addGeometry(Part.LineSegment(App.Vector(16, 83, 0), App.Vector(-16, 83, 0)), False)
sketch4.addGeometry(Part.LineSegment(App.Vector(-16, 83, 0), App.Vector(-31, 56, 0)), False)
sketch4.addGeometry(Part.LineSegment(App.Vector(-31, 56, 0), App.Vector(-16, 29, 0)), False)
sketch4.addGeometry(Part.LineSegment(App.Vector(-16, 29, 0), App.Vector(16, 29, 0)), False)
sketch4.addGeometry(Part.LineSegment(App.Vector(16, 29, 0), App.Vector(31, 56, 0)), False)
sketch4.addGeometry(Part.LineSegment(App.Vector(31, 56, 0), App.Vector(16, 83, 0)), False)
sketch4.addGeometry(Part.Circle(App.Vector(0, 56, 0), App.Vector(0, 0, 1), 22), False)
sketch4.addConstraint(Sketcher.Constraint("Coincident", 0, 2, 1, 1))
sketch4.addConstraint(Sketcher.Constraint("Coincident", 1, 2, 2, 1))
sketch4.addConstraint(Sketcher.Constraint("Coincident", 2, 2, 3, 1))
sketch4.addConstraint(Sketcher.Constraint("Coincident", 3, 2, 4, 1))
sketch4.addConstraint(Sketcher.Constraint("Coincident", 4, 2, 5, 1))
sketch4.addConstraint(Sketcher.Constraint("Coincident", 5, 2, 0, 1))
sketch4.addConstraint(Sketcher.Constraint("Horizontal", 0))
sketch4.addConstraint(Sketcher.Constraint("Horizontal", 3))
sketch4.addConstraint(Sketcher.Constraint("Symmetric", 1, 2, 4, 2, -2))
sketch4.addConstraint(Sketcher.Constraint("PointOnObject", 6, 3, -2))
sketch4.addConstraint(Sketcher.Constraint("Parallel", 1, 4))
sketch4.addConstraint(Sketcher.Constraint("Parallel", 2, 5))
sketch4.addConstraint(Sketcher.Constraint("Horizontal", 6, 3, 1, 2))
sketch4.addConstraint(Sketcher.Constraint("Vertical", 0, 2, 2, 2))
sketch4.addConstraint(Sketcher.Constraint("Vertical", 3, 2, 5, 2))
sketch4.addConstraint(Sketcher.Constraint("Diameter", 6, 45.0))
sketch4.addConstraint(Sketcher.Constraint("Angle", 1, Q("-120 deg")))
sketch4.addConstraint(Sketcher.Constraint("DistanceY", -1, 1, 6, 3, 56.0))
sketch4.addConstraint(Sketcher.Constraint("DistanceY", -1, 1, 0, 2, 83.0))
sketch4.addConstraint(Sketcher.Constraint("DistanceX", 0, 2, 0, 1, 31.176915))
pad4 = doc.addObject("PartDesign::Pad", "Pad003")
body.addObject(pad4)
pad4.Profile = sketch4
pad4.Length = 2
doc.recompute()

fillet = doc.addObject("PartDesign::Fillet", "Fillet")
body.addObject(fillet)
fillet.Base = (pad4, edges_at(pad4, [
    (-25.312, -6.43, 49),
    (-14, 13, 49),
    (9, 13, 49),
    (20.312, -6.43, 49),
    (-2.5, -10.2, 49),
]))
fillet.Radius = 2.5
doc.recompute()

fillet2 = doc.addObject("PartDesign::Fillet", "Fillet001")
body.addObject(fillet2)
fillet2.Base = (fillet, edges_at(fillet, [
    (-73.297, 12.954, 4),
    (-49.906, -11.983, 4),
    (0, -24.937, 4),
    (49.906, -11.983, 4),
    (73.297, 12.954, 4),
    (73.612, 42.5, 4),
    (49.075, 57, 4),
    (24.826, 71, 4),
    (0, 85, 4),
    (-24.826, 71, 4),
    (-49.075, 57, 4),
    (-73.612, 42.5, 4),
]))
fillet2.Radius = 1

doc.recompute()
